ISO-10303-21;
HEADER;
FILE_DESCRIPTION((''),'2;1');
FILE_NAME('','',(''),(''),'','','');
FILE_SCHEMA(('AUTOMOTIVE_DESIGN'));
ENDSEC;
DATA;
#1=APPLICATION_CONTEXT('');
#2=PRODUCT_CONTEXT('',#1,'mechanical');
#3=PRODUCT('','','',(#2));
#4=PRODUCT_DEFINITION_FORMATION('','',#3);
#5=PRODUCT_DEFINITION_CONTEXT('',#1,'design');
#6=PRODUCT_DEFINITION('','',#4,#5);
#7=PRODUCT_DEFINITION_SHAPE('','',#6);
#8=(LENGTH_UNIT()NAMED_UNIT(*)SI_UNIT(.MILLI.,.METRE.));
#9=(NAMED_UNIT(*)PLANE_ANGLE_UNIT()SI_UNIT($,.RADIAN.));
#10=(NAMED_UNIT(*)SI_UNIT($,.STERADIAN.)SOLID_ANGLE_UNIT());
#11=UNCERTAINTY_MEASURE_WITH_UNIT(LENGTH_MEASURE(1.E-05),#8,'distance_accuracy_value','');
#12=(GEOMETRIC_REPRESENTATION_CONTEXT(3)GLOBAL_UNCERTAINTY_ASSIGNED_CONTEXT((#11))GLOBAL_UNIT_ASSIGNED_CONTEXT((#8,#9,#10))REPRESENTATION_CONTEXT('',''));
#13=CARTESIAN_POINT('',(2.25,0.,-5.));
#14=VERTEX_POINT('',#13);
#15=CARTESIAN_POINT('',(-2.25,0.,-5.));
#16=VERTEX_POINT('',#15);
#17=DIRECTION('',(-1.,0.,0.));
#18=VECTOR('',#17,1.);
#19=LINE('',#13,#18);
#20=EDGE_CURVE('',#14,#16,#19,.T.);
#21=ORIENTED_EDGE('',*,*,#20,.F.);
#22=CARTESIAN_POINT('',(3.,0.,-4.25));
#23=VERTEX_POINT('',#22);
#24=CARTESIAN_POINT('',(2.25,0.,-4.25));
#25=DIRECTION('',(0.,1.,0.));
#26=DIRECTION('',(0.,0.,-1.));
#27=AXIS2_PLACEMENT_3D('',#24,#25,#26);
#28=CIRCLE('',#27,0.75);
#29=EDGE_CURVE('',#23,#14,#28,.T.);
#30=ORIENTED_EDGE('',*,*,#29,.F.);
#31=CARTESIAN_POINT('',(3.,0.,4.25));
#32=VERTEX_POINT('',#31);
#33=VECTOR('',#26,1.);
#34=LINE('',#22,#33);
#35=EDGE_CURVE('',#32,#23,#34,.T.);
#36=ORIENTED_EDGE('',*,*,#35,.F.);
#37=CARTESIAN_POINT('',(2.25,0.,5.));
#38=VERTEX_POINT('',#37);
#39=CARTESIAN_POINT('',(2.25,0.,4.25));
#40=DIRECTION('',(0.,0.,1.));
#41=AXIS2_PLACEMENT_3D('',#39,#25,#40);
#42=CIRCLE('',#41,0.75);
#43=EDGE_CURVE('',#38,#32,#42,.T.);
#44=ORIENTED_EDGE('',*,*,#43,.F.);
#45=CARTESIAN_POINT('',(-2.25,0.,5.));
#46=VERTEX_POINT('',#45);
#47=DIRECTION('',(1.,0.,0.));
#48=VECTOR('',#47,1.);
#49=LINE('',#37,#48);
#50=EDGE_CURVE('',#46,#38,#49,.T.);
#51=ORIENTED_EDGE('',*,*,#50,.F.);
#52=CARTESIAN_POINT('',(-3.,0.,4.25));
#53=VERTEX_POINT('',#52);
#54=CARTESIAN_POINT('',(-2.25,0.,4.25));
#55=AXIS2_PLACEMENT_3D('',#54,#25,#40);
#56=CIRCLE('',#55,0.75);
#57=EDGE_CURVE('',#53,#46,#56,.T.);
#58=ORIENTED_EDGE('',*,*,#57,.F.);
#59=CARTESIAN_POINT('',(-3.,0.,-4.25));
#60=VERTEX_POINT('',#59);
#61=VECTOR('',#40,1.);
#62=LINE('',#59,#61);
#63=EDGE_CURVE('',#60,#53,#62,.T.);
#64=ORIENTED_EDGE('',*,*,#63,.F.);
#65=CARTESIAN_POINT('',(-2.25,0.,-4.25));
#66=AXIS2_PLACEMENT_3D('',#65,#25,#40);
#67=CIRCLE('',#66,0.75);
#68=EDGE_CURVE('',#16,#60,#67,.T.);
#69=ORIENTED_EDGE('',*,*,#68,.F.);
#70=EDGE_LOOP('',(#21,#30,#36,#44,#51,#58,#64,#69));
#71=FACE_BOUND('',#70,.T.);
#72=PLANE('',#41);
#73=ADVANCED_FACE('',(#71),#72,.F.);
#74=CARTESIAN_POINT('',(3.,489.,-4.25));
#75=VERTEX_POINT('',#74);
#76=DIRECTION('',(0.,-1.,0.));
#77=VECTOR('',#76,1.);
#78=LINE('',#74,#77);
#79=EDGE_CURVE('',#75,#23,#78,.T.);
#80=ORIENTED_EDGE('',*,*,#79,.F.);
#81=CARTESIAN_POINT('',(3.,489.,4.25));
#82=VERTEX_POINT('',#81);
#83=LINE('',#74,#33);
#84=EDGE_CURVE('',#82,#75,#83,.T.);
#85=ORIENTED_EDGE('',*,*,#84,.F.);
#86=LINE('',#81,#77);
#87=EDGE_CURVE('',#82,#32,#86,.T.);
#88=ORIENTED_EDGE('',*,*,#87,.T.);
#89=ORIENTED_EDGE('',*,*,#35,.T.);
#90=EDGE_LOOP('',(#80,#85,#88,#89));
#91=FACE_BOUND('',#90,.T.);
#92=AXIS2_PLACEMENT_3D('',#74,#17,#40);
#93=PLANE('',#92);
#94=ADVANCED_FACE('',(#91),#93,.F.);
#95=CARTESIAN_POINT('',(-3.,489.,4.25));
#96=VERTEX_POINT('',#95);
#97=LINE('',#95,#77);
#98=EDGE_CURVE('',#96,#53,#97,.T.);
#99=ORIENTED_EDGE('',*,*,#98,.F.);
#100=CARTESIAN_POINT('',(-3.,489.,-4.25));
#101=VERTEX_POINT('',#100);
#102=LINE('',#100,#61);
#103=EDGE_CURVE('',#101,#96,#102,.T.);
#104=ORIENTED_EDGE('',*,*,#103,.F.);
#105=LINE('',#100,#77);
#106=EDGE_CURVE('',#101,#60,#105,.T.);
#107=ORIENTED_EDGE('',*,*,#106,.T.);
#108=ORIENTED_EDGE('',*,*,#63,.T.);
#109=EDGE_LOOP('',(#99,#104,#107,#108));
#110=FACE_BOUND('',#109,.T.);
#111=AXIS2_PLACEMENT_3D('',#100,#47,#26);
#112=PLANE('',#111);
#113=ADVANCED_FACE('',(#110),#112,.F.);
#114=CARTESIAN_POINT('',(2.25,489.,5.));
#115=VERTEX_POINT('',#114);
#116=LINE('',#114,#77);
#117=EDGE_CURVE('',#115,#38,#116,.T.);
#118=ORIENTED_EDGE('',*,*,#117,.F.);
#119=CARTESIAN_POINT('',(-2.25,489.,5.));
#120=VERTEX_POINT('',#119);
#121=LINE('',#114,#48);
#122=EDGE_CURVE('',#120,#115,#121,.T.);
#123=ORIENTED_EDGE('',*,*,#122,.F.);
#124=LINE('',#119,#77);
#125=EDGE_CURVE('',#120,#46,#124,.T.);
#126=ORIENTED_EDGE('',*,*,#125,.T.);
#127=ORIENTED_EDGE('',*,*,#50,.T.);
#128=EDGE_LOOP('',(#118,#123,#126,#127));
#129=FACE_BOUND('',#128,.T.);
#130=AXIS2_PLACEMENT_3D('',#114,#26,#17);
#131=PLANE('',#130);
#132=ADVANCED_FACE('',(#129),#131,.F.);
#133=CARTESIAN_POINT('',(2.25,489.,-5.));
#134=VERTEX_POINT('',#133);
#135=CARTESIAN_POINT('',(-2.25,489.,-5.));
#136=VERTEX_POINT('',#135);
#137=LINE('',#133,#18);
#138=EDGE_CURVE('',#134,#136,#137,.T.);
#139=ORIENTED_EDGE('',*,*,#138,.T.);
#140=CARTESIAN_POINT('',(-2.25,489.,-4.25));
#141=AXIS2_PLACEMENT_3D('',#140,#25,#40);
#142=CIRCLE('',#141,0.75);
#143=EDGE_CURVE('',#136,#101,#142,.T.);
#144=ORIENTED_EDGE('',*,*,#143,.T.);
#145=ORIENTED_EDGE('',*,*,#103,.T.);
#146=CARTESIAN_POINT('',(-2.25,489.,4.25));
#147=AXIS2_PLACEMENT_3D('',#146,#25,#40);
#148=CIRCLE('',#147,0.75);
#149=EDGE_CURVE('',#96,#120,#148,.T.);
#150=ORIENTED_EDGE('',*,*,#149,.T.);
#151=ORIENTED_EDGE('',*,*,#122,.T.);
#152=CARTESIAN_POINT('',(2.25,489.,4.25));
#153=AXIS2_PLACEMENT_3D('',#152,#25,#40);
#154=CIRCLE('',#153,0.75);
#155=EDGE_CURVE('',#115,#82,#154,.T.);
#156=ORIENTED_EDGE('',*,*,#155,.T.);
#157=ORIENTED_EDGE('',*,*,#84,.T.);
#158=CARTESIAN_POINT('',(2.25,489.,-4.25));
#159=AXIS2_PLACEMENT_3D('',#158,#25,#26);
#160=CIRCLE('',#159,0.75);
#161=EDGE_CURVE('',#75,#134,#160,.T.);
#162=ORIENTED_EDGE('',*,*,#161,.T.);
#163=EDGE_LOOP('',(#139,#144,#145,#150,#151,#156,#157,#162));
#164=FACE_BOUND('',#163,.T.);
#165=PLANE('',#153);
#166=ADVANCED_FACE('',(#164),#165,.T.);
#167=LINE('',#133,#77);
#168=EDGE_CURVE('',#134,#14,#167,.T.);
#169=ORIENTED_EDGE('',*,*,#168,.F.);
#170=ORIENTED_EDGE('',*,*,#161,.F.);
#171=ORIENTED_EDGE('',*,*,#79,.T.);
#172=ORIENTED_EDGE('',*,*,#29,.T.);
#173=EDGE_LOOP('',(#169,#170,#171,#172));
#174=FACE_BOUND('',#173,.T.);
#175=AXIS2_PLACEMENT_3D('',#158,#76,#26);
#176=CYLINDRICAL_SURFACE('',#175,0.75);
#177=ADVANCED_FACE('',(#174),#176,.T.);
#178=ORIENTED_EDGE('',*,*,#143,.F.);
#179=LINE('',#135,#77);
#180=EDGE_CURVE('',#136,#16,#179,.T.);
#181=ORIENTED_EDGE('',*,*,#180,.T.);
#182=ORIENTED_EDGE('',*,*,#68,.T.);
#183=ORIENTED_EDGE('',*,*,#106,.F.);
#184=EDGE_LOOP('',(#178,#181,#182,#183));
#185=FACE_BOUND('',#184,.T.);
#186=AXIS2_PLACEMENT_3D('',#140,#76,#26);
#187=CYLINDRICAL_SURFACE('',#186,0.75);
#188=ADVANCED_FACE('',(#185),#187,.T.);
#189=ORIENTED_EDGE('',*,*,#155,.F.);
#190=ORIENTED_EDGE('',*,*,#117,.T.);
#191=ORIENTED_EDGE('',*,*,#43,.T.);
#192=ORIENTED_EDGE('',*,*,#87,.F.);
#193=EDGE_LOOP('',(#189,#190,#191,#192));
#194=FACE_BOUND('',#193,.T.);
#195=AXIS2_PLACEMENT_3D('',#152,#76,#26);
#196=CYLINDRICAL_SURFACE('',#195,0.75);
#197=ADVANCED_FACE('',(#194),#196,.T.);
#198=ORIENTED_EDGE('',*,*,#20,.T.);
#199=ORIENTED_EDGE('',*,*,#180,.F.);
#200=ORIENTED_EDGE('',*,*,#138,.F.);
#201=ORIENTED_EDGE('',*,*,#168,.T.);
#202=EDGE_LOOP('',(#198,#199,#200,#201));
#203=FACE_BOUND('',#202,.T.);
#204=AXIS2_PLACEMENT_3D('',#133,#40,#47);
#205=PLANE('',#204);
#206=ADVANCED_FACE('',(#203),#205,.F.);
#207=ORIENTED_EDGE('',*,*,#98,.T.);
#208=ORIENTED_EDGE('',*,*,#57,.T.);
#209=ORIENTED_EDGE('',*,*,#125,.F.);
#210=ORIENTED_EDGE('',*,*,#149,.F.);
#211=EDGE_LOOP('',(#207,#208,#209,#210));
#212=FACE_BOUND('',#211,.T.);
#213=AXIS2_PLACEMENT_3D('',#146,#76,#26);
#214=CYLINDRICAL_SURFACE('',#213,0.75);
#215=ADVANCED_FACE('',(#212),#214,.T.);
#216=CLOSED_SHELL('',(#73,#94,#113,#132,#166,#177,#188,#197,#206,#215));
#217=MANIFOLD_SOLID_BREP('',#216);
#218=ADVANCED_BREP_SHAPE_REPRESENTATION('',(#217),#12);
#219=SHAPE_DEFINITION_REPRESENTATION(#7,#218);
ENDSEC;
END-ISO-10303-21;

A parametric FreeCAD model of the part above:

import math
import FreeCAD as App
import Part
import Sketcher

doc = App.newDocument("Part")
body = doc.addObject("PartDesign::Body", "Body")

# Sketch on XZ plane
sketch1 = body.newObject("Sketcher::SketchObject", "Sketch")
sketch1.AttachmentSupport = (doc.getObject("XZ_Plane"), [""])
sketch1.MapMode = "FlatFace"
sketch1.addGeometry([
    Part.LineSegment(App.Vector(2.2, -5, 0), App.Vector(-2.2, -5, 0)),  # 0
    Part.ArcOfCircle(Part.Circle(App.Vector(-2.2, -4.2, 0), App.Vector(0, 0, 1), 0.8), math.radians(180), math.radians(270)),  # 1
    Part.LineSegment(App.Vector(-3, -4.2, 0), App.Vector(-3, 4.2, 0)),  # 2
    Part.ArcOfCircle(Part.Circle(App.Vector(-2.2, 4.2, 0), App.Vector(0, 0, 1), 0.8), math.radians(90), math.radians(180)),  # 3
    Part.LineSegment(App.Vector(-2.2, 5, 0), App.Vector(2.2, 5, 0)),  # 4
    Part.ArcOfCircle(Part.Circle(App.Vector(2.2, 4.2, 0), App.Vector(0, 0, 1), 0.8), math.radians(0), math.radians(90)),  # 5
    Part.LineSegment(App.Vector(3, 4.2, 0), App.Vector(3, -4.2, 0)),  # 6
    Part.ArcOfCircle(Part.Circle(App.Vector(2.2, -4.2, 0), App.Vector(0, 0, 1), 0.8), math.radians(-90), math.radians(0)),  # 7
], False)
sketch1.addConstraint([
    Sketcher.Constraint("Tangent", 0, 2, 1, 2),
    Sketcher.Constraint("Tangent", 1, 1, 2, 1),
    Sketcher.Constraint("Tangent", 2, 2, 3, 2),
    Sketcher.Constraint("Tangent", 3, 1, 4, 1),
    Sketcher.Constraint("Tangent", 4, 2, 5, 2),
    Sketcher.Constraint("Tangent", 5, 1, 6, 1),
    Sketcher.Constraint("Tangent", 6, 2, 7, 2),
    Sketcher.Constraint("Tangent", 7, 1, 0, 1),
    Sketcher.Constraint("Horizontal", 0),
    Sketcher.Constraint("Vertical", 2),
    Sketcher.Constraint("Horizontal", 4),
    Sketcher.Constraint("Vertical", 6),
    Sketcher.Constraint("Equal", 1, 3),
    Sketcher.Constraint("Equal", 3, 5),
    Sketcher.Constraint("Equal", 5, 7),
    Sketcher.Constraint("Symmetric", 1, 3, 5, 3, -1, 1),
    Sketcher.Constraint("Radius", 1, 0.75),
    Sketcher.Constraint("DistanceX", 0, 2, 0, 1, 4.5),
    Sketcher.Constraint("DistanceY", 2, 1, 2, 2, 8.5),
])
pad1 = body.newObject("PartDesign::Pad", "Pad")
pad1.Profile = sketch1
pad1.Length = 489
pad1.Reversed = True

doc.recompute()
